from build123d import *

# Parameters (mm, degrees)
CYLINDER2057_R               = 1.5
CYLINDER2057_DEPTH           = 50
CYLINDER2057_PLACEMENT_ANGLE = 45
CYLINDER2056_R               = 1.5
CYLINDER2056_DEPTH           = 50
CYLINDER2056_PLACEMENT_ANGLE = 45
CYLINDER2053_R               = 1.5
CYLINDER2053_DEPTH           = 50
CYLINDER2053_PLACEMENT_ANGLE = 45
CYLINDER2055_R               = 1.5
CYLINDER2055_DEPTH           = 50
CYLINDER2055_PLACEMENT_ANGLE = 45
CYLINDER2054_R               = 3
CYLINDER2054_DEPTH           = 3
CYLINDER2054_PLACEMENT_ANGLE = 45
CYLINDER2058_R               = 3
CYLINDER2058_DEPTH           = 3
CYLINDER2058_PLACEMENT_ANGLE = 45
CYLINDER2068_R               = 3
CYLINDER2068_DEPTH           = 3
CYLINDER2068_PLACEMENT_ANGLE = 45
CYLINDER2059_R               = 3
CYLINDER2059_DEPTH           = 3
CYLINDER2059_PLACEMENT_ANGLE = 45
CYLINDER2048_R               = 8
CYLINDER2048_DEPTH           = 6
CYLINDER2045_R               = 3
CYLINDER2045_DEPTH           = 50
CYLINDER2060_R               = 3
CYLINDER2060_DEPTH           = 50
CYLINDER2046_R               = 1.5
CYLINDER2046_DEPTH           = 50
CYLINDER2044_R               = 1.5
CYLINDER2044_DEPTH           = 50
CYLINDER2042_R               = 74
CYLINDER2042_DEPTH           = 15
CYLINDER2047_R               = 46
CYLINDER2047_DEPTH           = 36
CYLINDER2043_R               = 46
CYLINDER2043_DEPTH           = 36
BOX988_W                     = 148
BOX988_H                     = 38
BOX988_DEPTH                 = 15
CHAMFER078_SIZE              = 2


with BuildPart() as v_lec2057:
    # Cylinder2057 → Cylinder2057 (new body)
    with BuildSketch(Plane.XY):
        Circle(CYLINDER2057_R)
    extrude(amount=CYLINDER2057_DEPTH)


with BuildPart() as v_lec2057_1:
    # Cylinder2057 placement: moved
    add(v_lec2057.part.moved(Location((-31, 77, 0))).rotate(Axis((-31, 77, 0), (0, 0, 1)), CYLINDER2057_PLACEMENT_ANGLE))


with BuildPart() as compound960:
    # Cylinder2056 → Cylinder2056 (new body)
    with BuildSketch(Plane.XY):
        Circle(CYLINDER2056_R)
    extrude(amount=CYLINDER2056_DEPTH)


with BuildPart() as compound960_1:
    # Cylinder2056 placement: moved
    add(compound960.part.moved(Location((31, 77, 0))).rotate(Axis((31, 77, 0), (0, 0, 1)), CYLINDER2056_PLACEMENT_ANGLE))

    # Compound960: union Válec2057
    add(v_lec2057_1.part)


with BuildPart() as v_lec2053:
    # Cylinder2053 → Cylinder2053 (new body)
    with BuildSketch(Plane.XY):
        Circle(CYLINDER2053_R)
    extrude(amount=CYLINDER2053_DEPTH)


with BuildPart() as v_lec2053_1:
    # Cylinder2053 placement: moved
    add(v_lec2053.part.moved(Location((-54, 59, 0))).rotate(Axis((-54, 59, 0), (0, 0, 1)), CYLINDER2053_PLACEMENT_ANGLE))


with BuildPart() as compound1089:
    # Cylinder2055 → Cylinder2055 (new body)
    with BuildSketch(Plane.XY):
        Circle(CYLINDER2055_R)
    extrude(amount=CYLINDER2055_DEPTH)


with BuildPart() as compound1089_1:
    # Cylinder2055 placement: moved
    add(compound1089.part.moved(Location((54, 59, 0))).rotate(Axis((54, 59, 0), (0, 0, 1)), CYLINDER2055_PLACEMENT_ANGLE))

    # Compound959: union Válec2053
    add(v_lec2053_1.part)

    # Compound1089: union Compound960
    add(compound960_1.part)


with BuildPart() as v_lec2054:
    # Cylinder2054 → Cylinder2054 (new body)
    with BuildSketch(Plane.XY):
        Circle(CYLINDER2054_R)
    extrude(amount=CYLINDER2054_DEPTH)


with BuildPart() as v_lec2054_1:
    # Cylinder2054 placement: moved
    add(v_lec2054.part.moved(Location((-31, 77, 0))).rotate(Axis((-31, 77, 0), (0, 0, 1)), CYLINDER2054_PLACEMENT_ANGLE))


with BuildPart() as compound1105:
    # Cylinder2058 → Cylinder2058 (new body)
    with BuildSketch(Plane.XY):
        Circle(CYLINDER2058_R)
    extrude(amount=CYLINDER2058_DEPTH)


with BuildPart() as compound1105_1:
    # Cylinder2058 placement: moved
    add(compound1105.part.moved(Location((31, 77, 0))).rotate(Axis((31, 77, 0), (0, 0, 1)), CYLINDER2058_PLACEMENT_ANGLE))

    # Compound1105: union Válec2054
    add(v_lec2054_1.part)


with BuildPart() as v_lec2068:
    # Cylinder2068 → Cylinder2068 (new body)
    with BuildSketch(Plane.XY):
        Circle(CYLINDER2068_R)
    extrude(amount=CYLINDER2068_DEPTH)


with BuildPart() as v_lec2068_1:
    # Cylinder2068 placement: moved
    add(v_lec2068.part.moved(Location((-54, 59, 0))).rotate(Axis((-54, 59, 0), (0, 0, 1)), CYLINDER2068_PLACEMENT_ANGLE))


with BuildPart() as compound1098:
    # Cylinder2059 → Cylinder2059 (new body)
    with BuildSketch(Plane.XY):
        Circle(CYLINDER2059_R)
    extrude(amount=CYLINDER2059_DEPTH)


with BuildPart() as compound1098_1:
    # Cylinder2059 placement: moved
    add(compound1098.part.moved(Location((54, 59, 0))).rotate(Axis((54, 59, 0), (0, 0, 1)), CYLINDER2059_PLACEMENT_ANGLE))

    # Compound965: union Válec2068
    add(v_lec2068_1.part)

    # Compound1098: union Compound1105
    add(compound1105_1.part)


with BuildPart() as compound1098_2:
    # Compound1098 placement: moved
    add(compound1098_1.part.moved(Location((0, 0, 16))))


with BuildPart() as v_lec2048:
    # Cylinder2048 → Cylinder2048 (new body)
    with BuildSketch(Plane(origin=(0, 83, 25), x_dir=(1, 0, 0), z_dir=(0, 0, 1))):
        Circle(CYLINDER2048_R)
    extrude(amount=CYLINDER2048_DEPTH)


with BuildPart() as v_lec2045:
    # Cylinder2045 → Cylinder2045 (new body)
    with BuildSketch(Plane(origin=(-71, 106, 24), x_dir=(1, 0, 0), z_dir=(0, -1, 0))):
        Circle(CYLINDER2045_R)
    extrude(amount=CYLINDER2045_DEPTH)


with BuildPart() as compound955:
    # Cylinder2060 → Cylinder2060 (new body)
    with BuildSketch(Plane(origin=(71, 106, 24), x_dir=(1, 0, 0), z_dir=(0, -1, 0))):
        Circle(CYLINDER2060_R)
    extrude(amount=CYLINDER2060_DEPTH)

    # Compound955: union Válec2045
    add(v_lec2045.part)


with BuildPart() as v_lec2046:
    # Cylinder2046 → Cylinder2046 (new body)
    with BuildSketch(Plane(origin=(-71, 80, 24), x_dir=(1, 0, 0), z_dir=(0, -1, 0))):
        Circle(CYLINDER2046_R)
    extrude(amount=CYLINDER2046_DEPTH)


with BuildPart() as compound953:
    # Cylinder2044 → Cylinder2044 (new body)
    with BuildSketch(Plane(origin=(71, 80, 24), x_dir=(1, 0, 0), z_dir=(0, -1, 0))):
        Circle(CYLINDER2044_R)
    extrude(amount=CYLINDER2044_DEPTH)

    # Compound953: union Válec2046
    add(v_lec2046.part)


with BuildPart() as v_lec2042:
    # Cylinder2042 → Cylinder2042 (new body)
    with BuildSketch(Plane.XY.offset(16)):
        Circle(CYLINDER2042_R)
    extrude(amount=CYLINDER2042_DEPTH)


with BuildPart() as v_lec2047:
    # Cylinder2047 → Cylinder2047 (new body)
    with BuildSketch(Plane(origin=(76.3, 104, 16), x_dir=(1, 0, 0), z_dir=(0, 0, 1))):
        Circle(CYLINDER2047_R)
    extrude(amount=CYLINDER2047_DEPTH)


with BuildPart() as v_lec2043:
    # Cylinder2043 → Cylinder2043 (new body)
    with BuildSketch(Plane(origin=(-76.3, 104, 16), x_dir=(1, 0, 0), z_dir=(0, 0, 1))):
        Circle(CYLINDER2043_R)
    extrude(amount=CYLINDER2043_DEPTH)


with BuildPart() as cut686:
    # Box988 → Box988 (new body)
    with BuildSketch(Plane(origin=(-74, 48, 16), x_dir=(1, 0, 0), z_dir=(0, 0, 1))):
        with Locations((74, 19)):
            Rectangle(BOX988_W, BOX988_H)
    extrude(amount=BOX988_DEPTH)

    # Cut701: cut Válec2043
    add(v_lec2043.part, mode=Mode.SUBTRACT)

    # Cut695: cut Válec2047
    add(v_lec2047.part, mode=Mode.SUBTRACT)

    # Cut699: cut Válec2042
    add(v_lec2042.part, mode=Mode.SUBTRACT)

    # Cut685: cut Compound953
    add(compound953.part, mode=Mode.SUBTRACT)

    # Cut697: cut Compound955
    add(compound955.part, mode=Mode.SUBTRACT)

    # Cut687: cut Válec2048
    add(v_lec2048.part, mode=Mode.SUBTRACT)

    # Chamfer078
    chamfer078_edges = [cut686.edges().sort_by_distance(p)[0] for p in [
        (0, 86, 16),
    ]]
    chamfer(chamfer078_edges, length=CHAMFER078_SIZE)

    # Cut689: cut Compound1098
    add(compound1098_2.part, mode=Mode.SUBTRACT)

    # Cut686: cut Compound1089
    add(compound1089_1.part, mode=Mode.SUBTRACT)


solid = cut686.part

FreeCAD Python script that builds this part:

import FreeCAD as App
import Part
import Sketcher
from FreeCAD import Vector


def edges_at(feature, points):
    """Names of the edges that pass closest to the given points."""
    edges = feature.Shape.Edges
    near = lambda p: min(range(len(edges)), key=lambda i: edges[i].distToShape(Part.Vertex(*p))[0])
    return sorted({f"Edge{near(p) + 1}" for p in points})


def add_polygon(sketch, points):
    """Adds a closed chain of lines whose ends are joined by coincident constraints."""
    first, n = sketch.GeometryCount, len(points)
    for a, b in zip(points, points[1:] + points[:1]):
        sketch.addGeometry(Part.LineSegment(App.Vector(*a, 0), App.Vector(*b, 0)), False)
    for i in range(n):
        sketch.addConstraint(Sketcher.Constraint("Coincident", first + i, 2, first + (i + 1) % n, 1))

doc = App.newDocument("Part")
body = doc.addObject("PartDesign::Body", "Body")

# Sketch on XY plane
sketch1 = doc.addObject("Sketcher::SketchObject", "Sketch")
body.addObject(sketch1)
sketch1.AttachmentSupport = (doc.XY_Plane, [""])
sketch1.MapMode = "FlatFace"
sketch1.addGeometry(Part.Circle(Vector(0, 0, 0), Vector(0, 0, 1), 1.5), False)
sketch1.addConstraint([
    Sketcher.Constraint("Coincident", 0, 3, -1, 1),
    Sketcher.Constraint("Diameter", 0, 3.0),
])
pad1 = doc.addObject("PartDesign::Pad", "Pad")
body.addObject(pad1)
pad1.Profile = sketch1
pad1.Length = 50
body2 = doc.addObject("PartDesign::Body", "Body001")
doc.recompute()

body.Placement = App.Placement(Vector(-31, 77, 0), App.Rotation(Vector(0, 0, 1), 45))
boolean = doc.addObject("PartDesign::Boolean", "Boolean")
body2.addObject(boolean)
boolean.Type = "Fuse"
boolean.addObjects([body])
body3 = doc.addObject("PartDesign::Body", "Body002")

# Sketch on XY plane
sketch2 = doc.addObject("Sketcher::SketchObject", "Sketch001")
body3.addObject(sketch2)
sketch2.AttachmentSupport = (doc.getObject("XY_Plane002"), [""])
sketch2.MapMode = "FlatFace"
sketch2.addGeometry(Part.Circle(Vector(0, 0, 0), Vector(0, 0, 1), 1.5), False)
sketch2.addConstraint([
    Sketcher.Constraint("Coincident", 0, 3, -1, 1),
    Sketcher.Constraint("Diameter", 0, 3.0),
])
pad2 = doc.addObject("PartDesign::Pad", "Pad001")
body3.addObject(pad2)
pad2.Profile = sketch2
pad2.Length = 50
body4 = doc.addObject("PartDesign::Body", "Body003")
body4.AllowCompound = True
doc.recompute()

body3.Placement = App.Placement(Vector(31, 77, 0), App.Rotation(Vector(0, 0, 1), 45))
boolean2 = doc.addObject("PartDesign::Boolean", "Boolean001")
body4.addObject(boolean2)
boolean2.Type = "Fuse"
boolean2.addObjects([body3])
doc.recompute()

boolean3 = doc.addObject("PartDesign::Boolean", "Boolean002")
body4.addObject(boolean3)
boolean3.Type = "Fuse"
boolean3.addObjects([body2])
body5 = doc.addObject("PartDesign::Body", "Body004")

# Sketch on XY plane
sketch3 = doc.addObject("Sketcher::SketchObject", "Sketch002")
body5.addObject(sketch3)
sketch3.AttachmentSupport = (doc.getObject("XY_Plane004"), [""])
sketch3.MapMode = "FlatFace"
sketch3.addGeometry(Part.Circle(Vector(0, 0, 0), Vector(0, 0, 1), 1.5), False)
sketch3.addConstraint([
    Sketcher.Constraint("Coincident", 0, 3, -1, 1),
    Sketcher.Constraint("Diameter", 0, 3.0),
])
pad3 = doc.addObject("PartDesign::Pad", "Pad002")
body5.addObject(pad3)
pad3.Profile = sketch3
pad3.Length = 50
body6 = doc.addObject("PartDesign::Body", "Body005")
doc.recompute()

body5.Placement = App.Placement(Vector(-54, 59, 0), App.Rotation(Vector(0, 0, 1), 45))
boolean4 = doc.addObject("PartDesign::Boolean", "Boolean003")
body6.addObject(boolean4)
boolean4.Type = "Fuse"
boolean4.addObjects([body5])
body7 = doc.addObject("PartDesign::Body", "Body006")

# Sketch on XY plane
sketch4 = doc.addObject("Sketcher::SketchObject", "Sketch003")
body7.addObject(sketch4)
sketch4.AttachmentSupport = (doc.getObject("XY_Plane006"), [""])
sketch4.MapMode = "FlatFace"
sketch4.addGeometry(Part.Circle(Vector(0, 0, 0), Vector(0, 0, 1), 1.5), False)
sketch4.addConstraint([
    Sketcher.Constraint("Coincident", 0, 3, -1, 1),
    Sketcher.Constraint("Diameter", 0, 3.0),
])
pad4 = doc.addObject("PartDesign::Pad", "Pad003")
body7.addObject(pad4)
pad4.Profile = sketch4
pad4.Length = 50
body8 = doc.addObject("PartDesign::Body", "Body007")
body8.AllowCompound = True
doc.recompute()

body7.Placement = App.Placement(Vector(54, 59, 0), App.Rotation(Vector(0, 0, 1), 45))
boolean5 = doc.addObject("PartDesign::Boolean", "Boolean004")
body8.addObject(boolean5)
boolean5.Type = "Fuse"
boolean5.addObjects([body7])
doc.recompute()

boolean6 = doc.addObject("PartDesign::Boolean", "Boolean005")
body8.addObject(boolean6)
boolean6.Type = "Fuse"
boolean6.addObjects([body6])
doc.recompute()

boolean7 = doc.addObject("PartDesign::Boolean", "Boolean006")
body8.addObject(boolean7)
boolean7.Type = "Fuse"
boolean7.addObjects([body4])
body9 = doc.addObject("PartDesign::Body", "Body008")

# Sketch on XY plane
sketch5 = doc.addObject("Sketcher::SketchObject", "Sketch004")
body9.addObject(sketch5)
sketch5.AttachmentSupport = (doc.getObject("XY_Plane008"), [""])
sketch5.MapMode = "FlatFace"
sketch5.addGeometry(Part.Circle(Vector(0, 0, 0), Vector(0, 0, 1), 3), False)
sketch5.addConstraint([
    Sketcher.Constraint("Coincident", 0, 3, -1, 1),
    Sketcher.Constraint("Diameter", 0, 6.0),
])
pad5 = doc.addObject("PartDesign::Pad", "Pad004")
body9.addObject(pad5)
pad5.Profile = sketch5
pad5.Length = 3
body10 = doc.addObject("PartDesign::Body", "Body009")
doc.recompute()

body9.Placement = App.Placement(Vector(-31, 77, 0), App.Rotation(Vector(0, 0, 1), 45))
boolean8 = doc.addObject("PartDesign::Boolean", "Boolean007")
body10.addObject(boolean8)
boolean8.Type = "Fuse"
boolean8.addObjects([body9])
body11 = doc.addObject("PartDesign::Body", "Body010")

# Sketch on XY plane
sketch6 = doc.addObject("Sketcher::SketchObject", "Sketch005")
body11.addObject(sketch6)
sketch6.AttachmentSupport = (doc.getObject("XY_Plane010"), [""])
sketch6.MapMode = "FlatFace"
sketch6.addGeometry(Part.Circle(Vector(0, 0, 0), Vector(0, 0, 1), 3), False)
sketch6.addConstraint([
    Sketcher.Constraint("Coincident", 0, 3, -1, 1),
    Sketcher.Constraint("Diameter", 0, 6.0),
])
pad6 = doc.addObject("PartDesign::Pad", "Pad005")
body11.addObject(pad6)
pad6.Profile = sketch6
pad6.Length = 3
body12 = doc.addObject("PartDesign::Body", "Body011")
body12.AllowCompound = True
doc.recompute()

body11.Placement = App.Placement(Vector(31, 77, 0), App.Rotation(Vector(0, 0, 1), 45))
boolean9 = doc.addObject("PartDesign::Boolean", "Boolean008")
body12.addObject(boolean9)
boolean9.Type = "Fuse"
boolean9.addObjects([body11])
doc.recompute()

boolean10 = doc.addObject("PartDesign::Boolean", "Boolean009")
body12.addObject(boolean10)
boolean10.Type = "Fuse"
boolean10.addObjects([body10])
body13 = doc.addObject("PartDesign::Body", "Body012")

# Sketch on XY plane
sketch7 = doc.addObject("Sketcher::SketchObject", "Sketch006")
body13.addObject(sketch7)
sketch7.AttachmentSupport = (doc.getObject("XY_Plane012"), [""])
sketch7.MapMode = "FlatFace"
sketch7.addGeometry(Part.Circle(Vector(0, 0, 0), Vector(0, 0, 1), 3), False)
sketch7.addConstraint([
    Sketcher.Constraint("Coincident", 0, 3, -1, 1),
    Sketcher.Constraint("Diameter", 0, 6.0),
])
pad7 = doc.addObject("PartDesign::Pad", "Pad006")
body13.addObject(pad7)
pad7.Profile = sketch7
pad7.Length = 3
body14 = doc.addObject("PartDesign::Body", "Body013")
doc.recompute()

body13.Placement = App.Placement(Vector(-54, 59, 0), App.Rotation(Vector(0, 0, 1), 45))
boolean11 = doc.addObject("PartDesign::Boolean", "Boolean010")
body14.addObject(boolean11)
boolean11.Type = "Fuse"
boolean11.addObjects([body13])
body15 = doc.addObject("PartDesign::Body", "Body014")

# Sketch on XY plane
sketch8 = doc.addObject("Sketcher::SketchObject", "Sketch007")
body15.addObject(sketch8)
sketch8.AttachmentSupport = (doc.getObject("XY_Plane014"), [""])
sketch8.MapMode = "FlatFace"
sketch8.addGeometry(Part.Circle(Vector(0, 0, 0), Vector(0, 0, 1), 3), False)
sketch8.addConstraint([
    Sketcher.Constraint("Coincident", 0, 3, -1, 1),
    Sketcher.Constraint("Diameter", 0, 6.0),
])
pad8 = doc.addObject("PartDesign::Pad", "Pad007")
body15.addObject(pad8)
pad8.Profile = sketch8
pad8.Length = 3
body16 = doc.addObject("PartDesign::Body", "Body015")
body16.AllowCompound = True
doc.recompute()

body15.Placement = App.Placement(Vector(54, 59, 0), App.Rotation(Vector(0, 0, 1), 45))
boolean12 = doc.addObject("PartDesign::Boolean", "Boolean011")
body16.addObject(boolean12)
boolean12.Type = "Fuse"
boolean12.addObjects([body15])
doc.recompute()

boolean13 = doc.addObject("PartDesign::Boolean", "Boolean012")
body16.addObject(boolean13)
boolean13.Type = "Fuse"
boolean13.addObjects([body14])
doc.recompute()

boolean14 = doc.addObject("PartDesign::Boolean", "Boolean013")
body16.addObject(boolean14)
boolean14.Type = "Fuse"
boolean14.addObjects([body12])
body17 = doc.addObject("PartDesign::Body", "Body016")
body17.AllowCompound = True
doc.recompute()

body16.Placement = App.Placement(Vector(0, 0, 16), App.Rotation(Vector(0, 0, 1), 0))
boolean15 = doc.addObject("PartDesign::Boolean", "Boolean014")
body17.addObject(boolean15)
boolean15.Type = "Fuse"
boolean15.addObjects([body16])
body18 = doc.addObject("PartDesign::Body", "Body017")

# Sketch on XY plane
sketch9 = doc.addObject("Sketcher::SketchObject", "Sketch008")
body18.addObject(sketch9)
sketch9.AttachmentSupport = (doc.getObject("XY_Plane017"), [""])
sketch9.MapMode = "FlatFace"
sketch9.AttachmentOffset = App.Placement(Vector(0, 0, 25), App.Rotation())
sketch9.addGeometry(Part.Circle(Vector(0, 83, 0), Vector(0, 0, 1), 8), False)
sketch9.addConstraint([
    Sketcher.Constraint("PointOnObject", 0, 3, -2),
    Sketcher.Constraint("Diameter", 0, 16.0),
    Sketcher.Constraint("DistanceY", -1, 1, 0, 3, 83.0),
])
pad9 = doc.addObject("PartDesign::Pad", "Pad008")
body18.addObject(pad9)
pad9.Profile = sketch9
pad9.Length = 6
body19 = doc.addObject("PartDesign::Body", "Body018")

# Sketch on XZ plane
sketch10 = doc.addObject("Sketcher::SketchObject", "Sketch009")
body19.addObject(sketch10)
sketch10.AttachmentSupport = (doc.getObject("XZ_Plane018"), [""])
sketch10.MapMode = "FlatFace"
sketch10.AttachmentOffset = App.Placement(Vector(0, 0, -106), App.Rotation())
sketch10.addGeometry(Part.Circle(Vector(-71, 24, 0), Vector(0, 0, 1), 3), False)
sketch10.addConstraint([
    Sketcher.Constraint("Diameter", 0, 6.0),
    Sketcher.Constraint("DistanceX", 0, 3, -1, 1, 71.0),
    Sketcher.Constraint("DistanceY", -1, 1, 0, 3, 24.0),
])
pad10 = doc.addObject("PartDesign::Pad", "Pad009")
body19.addObject(pad10)
pad10.Profile = sketch10
pad10.Length = 50
body20 = doc.addObject("PartDesign::Body", "Body019")
body20.AllowCompound = True

# Sketch on XZ plane
sketch11 = doc.addObject("Sketcher::SketchObject", "Sketch010")
body20.addObject(sketch11)
sketch11.AttachmentSupport = (doc.getObject("XZ_Plane019"), [""])
sketch11.MapMode = "FlatFace"
sketch11.AttachmentOffset = App.Placement(Vector(0, 0, -106), App.Rotation())
sketch11.addGeometry(Part.Circle(Vector(71, 24, 0), Vector(0, 0, 1), 3), False)
sketch11.addConstraint([
    Sketcher.Constraint("Diameter", 0, 6.0),
    Sketcher.Constraint("DistanceX", -1, 1, 0, 3, 71.0),
    Sketcher.Constraint("DistanceY", -1, 1, 0, 3, 24.0),
])
pad11 = doc.addObject("PartDesign::Pad", "Pad010")
body20.addObject(pad11)
pad11.Profile = sketch11
pad11.Length = 50
doc.recompute()

boolean16 = doc.addObject("PartDesign::Boolean", "Boolean015")
body20.addObject(boolean16)
boolean16.Type = "Fuse"
boolean16.addObjects([body19])
body21 = doc.addObject("PartDesign::Body", "Body020")

# Sketch on XZ plane
sketch12 = doc.addObject("Sketcher::SketchObject", "Sketch011")
body21.addObject(sketch12)
sketch12.AttachmentSupport = (doc.getObject("XZ_Plane020"), [""])
sketch12.MapMode = "FlatFace"
sketch12.AttachmentOffset = App.Placement(Vector(0, 0, -80), App.Rotation())
sketch12.addGeometry(Part.Circle(Vector(-71, 24, 0), Vector(0, 0, 1), 1.5), False)
sketch12.addConstraint([
    Sketcher.Constraint("Diameter", 0, 3.0),
    Sketcher.Constraint("DistanceX", 0, 3, -1, 1, 71.0),
    Sketcher.Constraint("DistanceY", -1, 1, 0, 3, 24.0),
])
pad12 = doc.addObject("PartDesign::Pad", "Pad011")
body21.addObject(pad12)
pad12.Profile = sketch12
pad12.Length = 50
body22 = doc.addObject("PartDesign::Body", "Body021")
body22.AllowCompound = True

# Sketch on XZ plane
sketch13 = doc.addObject("Sketcher::SketchObject", "Sketch012")
body22.addObject(sketch13)
sketch13.AttachmentSupport = (doc.getObject("XZ_Plane021"), [""])
sketch13.MapMode = "FlatFace"
sketch13.AttachmentOffset = App.Placement(Vector(0, 0, -80), App.Rotation())
sketch13.addGeometry(Part.Circle(Vector(71, 24, 0), Vector(0, 0, 1), 1.5), False)
sketch13.addConstraint([
    Sketcher.Constraint("Diameter", 0, 3.0),
    Sketcher.Constraint("DistanceX", -1, 1, 0, 3, 71.0),
    Sketcher.Constraint("DistanceY", -1, 1, 0, 3, 24.0),
])
pad13 = doc.addObject("PartDesign::Pad", "Pad012")
body22.addObject(pad13)
pad13.Profile = sketch13
pad13.Length = 50
doc.recompute()

boolean17 = doc.addObject("PartDesign::Boolean", "Boolean016")
body22.addObject(boolean17)
boolean17.Type = "Fuse"
boolean17.addObjects([body21])
body23 = doc.addObject("PartDesign::Body", "Body022")

# Sketch on XY plane
sketch14 = doc.addObject("Sketcher::SketchObject", "Sketch013")
body23.addObject(sketch14)
sketch14.AttachmentSupport = (doc.getObject("XY_Plane022"), [""])
sketch14.MapMode = "FlatFace"
sketch14.AttachmentOffset = App.Placement(Vector(0, 0, 16), App.Rotation())
sketch14.addGeometry(Part.Circle(Vector(0, 0, 0), Vector(0, 0, 1), 74), False)
sketch14.addConstraint([
    Sketcher.Constraint("Coincident", 0, 3, -1, 1),
    Sketcher.Constraint("Diameter", 0, 148.0),
])
pad14 = doc.addObject("PartDesign::Pad", "Pad013")
body23.addObject(pad14)
pad14.Profile = sketch14
pad14.Length = 15
body24 = doc.addObject("PartDesign::Body", "Body023")

# Sketch on XY plane
sketch15 = doc.addObject("Sketcher::SketchObject", "Sketch014")
body24.addObject(sketch15)
sketch15.AttachmentSupport = (doc.getObject("XY_Plane023"), [""])
sketch15.MapMode = "FlatFace"
sketch15.AttachmentOffset = App.Placement(Vector(0, 0, 16), App.Rotation())
sketch15.addGeometry(Part.Circle(Vector(76, 104, 0), Vector(0, 0, 1), 46), False)
sketch15.addConstraint([
    Sketcher.Constraint("Diameter", 0, 92.0),
    Sketcher.Constraint("DistanceY", -1, 1, 0, 3, 104.0),
    Sketcher.Constraint("DistanceX", -1, 1, 0, 3, 76.3),
])
pad15 = doc.addObject("PartDesign::Pad", "Pad014")
body24.addObject(pad15)
pad15.Profile = sketch15
pad15.Length = 36
body25 = doc.addObject("PartDesign::Body", "Body024")

# Sketch on XY plane
sketch16 = doc.addObject("Sketcher::SketchObject", "Sketch015")
body25.addObject(sketch16)
sketch16.AttachmentSupport = (doc.getObject("XY_Plane024"), [""])
sketch16.MapMode = "FlatFace"
sketch16.AttachmentOffset = App.Placement(Vector(0, 0, 16), App.Rotation())
sketch16.addGeometry(Part.Circle(Vector(-76, 104, 0), Vector(0, 0, 1), 46), False)
sketch16.addConstraint([
    Sketcher.Constraint("Diameter", 0, 92.0),
    Sketcher.Constraint("DistanceY", -1, 1, 0, 3, 104.0),
    Sketcher.Constraint("DistanceX", 0, 3, -1, 1, 76.3),
])
pad16 = doc.addObject("PartDesign::Pad", "Pad015")
body25.addObject(pad16)
pad16.Profile = sketch16
pad16.Length = 36
body26 = doc.addObject("PartDesign::Body", "Body025")

# Sketch on XY plane
sketch17 = doc.addObject("Sketcher::SketchObject", "Sketch016")
body26.addObject(sketch17)
sketch17.AttachmentSupport = (doc.getObject("XY_Plane025"), [""])
sketch17.MapMode = "FlatFace"
sketch17.AttachmentOffset = App.Placement(Vector(0, 0, 16), App.Rotation())
add_polygon(sketch17, [(-74, 86), (-74, 48), (74, 48), (74, 86)])  # lines 0-3
sketch17.addConstraint([
    Sketcher.Constraint("Vertical", 0),
    Sketcher.Constraint("Horizontal", 1),
    Sketcher.Constraint("Vertical", 2),
    Sketcher.Constraint("Horizontal", 3),
    Sketcher.Constraint("DistanceX", 1, 1, 1, 2, 148.0),
    Sketcher.Constraint("DistanceY", 0, 2, 0, 1, 38.0),
    Sketcher.Constraint("DistanceX", 0, 2, -1, 1, 74.0),
    Sketcher.Constraint("DistanceY", -1, 1, 0, 2, 48.0),
])
pad17 = doc.addObject("PartDesign::Pad", "Pad016")
body26.addObject(pad17)
pad17.Profile = sketch17
pad17.Length = 15
doc.recompute()

boolean18 = doc.addObject("PartDesign::Boolean", "Boolean017")
body26.addObject(boolean18)
boolean18.Type = "Cut"
boolean18.addObjects([body25])
doc.recompute()

boolean19 = doc.addObject("PartDesign::Boolean", "Boolean018")
body26.addObject(boolean19)
boolean19.Type = "Cut"
boolean19.addObjects([body24])
doc.recompute()

boolean20 = doc.addObject("PartDesign::Boolean", "Boolean019")
body26.addObject(boolean20)
boolean20.Type = "Cut"
boolean20.addObjects([body23])
doc.recompute()

boolean21 = doc.addObject("PartDesign::Boolean", "Boolean020")
body26.addObject(boolean21)
boolean21.Type = "Cut"
boolean21.addObjects([body22])
doc.recompute()

boolean22 = doc.addObject("PartDesign::Boolean", "Boolean021")
body26.addObject(boolean22)
boolean22.Type = "Cut"
boolean22.addObjects([body20])
doc.recompute()

boolean23 = doc.addObject("PartDesign::Boolean", "Boolean022")
body26.addObject(boolean23)
boolean23.Type = "Cut"
boolean23.addObjects([body18])
doc.recompute()

chamfer = doc.addObject("PartDesign::Chamfer", "Chamfer")
body26.addObject(chamfer)
chamfer.Base = (boolean23, edges_at(boolean23, [(0, 86, 16)]))
chamfer.Size = 2
doc.recompute()

boolean24 = doc.addObject("PartDesign::Boolean", "Boolean023")
body26.addObject(boolean24)
boolean24.Type = "Cut"
boolean24.addObjects([body17])
doc.recompute()

boolean25 = doc.addObject("PartDesign::Boolean", "Boolean024")
body26.addObject(boolean25)
boolean25.Type = "Cut"
boolean25.addObjects([body8])

doc.recompute()
